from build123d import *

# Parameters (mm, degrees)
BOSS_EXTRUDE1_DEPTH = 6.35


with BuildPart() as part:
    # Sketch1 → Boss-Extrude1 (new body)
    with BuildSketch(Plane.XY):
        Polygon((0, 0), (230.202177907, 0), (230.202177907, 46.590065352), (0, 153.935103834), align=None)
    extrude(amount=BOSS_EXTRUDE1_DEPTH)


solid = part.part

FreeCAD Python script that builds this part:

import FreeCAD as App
import Part
import Sketcher
Q = App.Units.Quantity

doc = App.newDocument("Part")
body = doc.addObject("PartDesign::Body", "Body")

# Sketch on XY plane
sketch1 = body.newObject("Sketcher::SketchObject", "Sketch")
sketch1.AttachmentSupport = (doc.getObject("XY_Plane"), [""])
sketch1.MapMode = "FlatFace"
sketch1.addGeometry([
    Part.LineSegment(App.Vector(0, 0, 0), App.Vector(230.202178, 0, 0)),
    Part.LineSegment(App.Vector(230.202178, 0, 0), App.Vector(230.202178, 46.590065, 0)),
    Part.LineSegment(App.Vector(230.202178, 46.590065, 0), App.Vector(0, 153.935104, 0)),
    Part.LineSegment(App.Vector(0, 153.935104, 0), App.Vector(0, 0, 0)),
], False)
sketch1.addConstraint([
    Sketcher.Constraint("Coincident", 0, 2, 1, 1),
    Sketcher.Constraint("Coincident", 1, 2, 2, 1),
    Sketcher.Constraint("Coincident", 2, 2, 3, 1),
    Sketcher.Constraint("Coincident", 3, 2, 0, 1),
    Sketcher.Constraint("Horizontal", 0),
    Sketcher.Constraint("Vertical", 1),
    Sketcher.Constraint("Vertical", 3),
    Sketcher.Constraint("Coincident", 3, 2, -1, 1),
    Sketcher.Constraint("Distance", 2, Q("10 in")),
    Sketcher.Constraint("Angle", 2, Q("155 deg")),
    Sketcher.Constraint("DistanceY", 1, 1, 1, 2, Q("46.590065 mm")),
])
pad1 = body.newObject("PartDesign::Pad", "Pad")
pad1.Profile = sketch1
pad1.Length = Q("0.25 in")

doc.recompute()
